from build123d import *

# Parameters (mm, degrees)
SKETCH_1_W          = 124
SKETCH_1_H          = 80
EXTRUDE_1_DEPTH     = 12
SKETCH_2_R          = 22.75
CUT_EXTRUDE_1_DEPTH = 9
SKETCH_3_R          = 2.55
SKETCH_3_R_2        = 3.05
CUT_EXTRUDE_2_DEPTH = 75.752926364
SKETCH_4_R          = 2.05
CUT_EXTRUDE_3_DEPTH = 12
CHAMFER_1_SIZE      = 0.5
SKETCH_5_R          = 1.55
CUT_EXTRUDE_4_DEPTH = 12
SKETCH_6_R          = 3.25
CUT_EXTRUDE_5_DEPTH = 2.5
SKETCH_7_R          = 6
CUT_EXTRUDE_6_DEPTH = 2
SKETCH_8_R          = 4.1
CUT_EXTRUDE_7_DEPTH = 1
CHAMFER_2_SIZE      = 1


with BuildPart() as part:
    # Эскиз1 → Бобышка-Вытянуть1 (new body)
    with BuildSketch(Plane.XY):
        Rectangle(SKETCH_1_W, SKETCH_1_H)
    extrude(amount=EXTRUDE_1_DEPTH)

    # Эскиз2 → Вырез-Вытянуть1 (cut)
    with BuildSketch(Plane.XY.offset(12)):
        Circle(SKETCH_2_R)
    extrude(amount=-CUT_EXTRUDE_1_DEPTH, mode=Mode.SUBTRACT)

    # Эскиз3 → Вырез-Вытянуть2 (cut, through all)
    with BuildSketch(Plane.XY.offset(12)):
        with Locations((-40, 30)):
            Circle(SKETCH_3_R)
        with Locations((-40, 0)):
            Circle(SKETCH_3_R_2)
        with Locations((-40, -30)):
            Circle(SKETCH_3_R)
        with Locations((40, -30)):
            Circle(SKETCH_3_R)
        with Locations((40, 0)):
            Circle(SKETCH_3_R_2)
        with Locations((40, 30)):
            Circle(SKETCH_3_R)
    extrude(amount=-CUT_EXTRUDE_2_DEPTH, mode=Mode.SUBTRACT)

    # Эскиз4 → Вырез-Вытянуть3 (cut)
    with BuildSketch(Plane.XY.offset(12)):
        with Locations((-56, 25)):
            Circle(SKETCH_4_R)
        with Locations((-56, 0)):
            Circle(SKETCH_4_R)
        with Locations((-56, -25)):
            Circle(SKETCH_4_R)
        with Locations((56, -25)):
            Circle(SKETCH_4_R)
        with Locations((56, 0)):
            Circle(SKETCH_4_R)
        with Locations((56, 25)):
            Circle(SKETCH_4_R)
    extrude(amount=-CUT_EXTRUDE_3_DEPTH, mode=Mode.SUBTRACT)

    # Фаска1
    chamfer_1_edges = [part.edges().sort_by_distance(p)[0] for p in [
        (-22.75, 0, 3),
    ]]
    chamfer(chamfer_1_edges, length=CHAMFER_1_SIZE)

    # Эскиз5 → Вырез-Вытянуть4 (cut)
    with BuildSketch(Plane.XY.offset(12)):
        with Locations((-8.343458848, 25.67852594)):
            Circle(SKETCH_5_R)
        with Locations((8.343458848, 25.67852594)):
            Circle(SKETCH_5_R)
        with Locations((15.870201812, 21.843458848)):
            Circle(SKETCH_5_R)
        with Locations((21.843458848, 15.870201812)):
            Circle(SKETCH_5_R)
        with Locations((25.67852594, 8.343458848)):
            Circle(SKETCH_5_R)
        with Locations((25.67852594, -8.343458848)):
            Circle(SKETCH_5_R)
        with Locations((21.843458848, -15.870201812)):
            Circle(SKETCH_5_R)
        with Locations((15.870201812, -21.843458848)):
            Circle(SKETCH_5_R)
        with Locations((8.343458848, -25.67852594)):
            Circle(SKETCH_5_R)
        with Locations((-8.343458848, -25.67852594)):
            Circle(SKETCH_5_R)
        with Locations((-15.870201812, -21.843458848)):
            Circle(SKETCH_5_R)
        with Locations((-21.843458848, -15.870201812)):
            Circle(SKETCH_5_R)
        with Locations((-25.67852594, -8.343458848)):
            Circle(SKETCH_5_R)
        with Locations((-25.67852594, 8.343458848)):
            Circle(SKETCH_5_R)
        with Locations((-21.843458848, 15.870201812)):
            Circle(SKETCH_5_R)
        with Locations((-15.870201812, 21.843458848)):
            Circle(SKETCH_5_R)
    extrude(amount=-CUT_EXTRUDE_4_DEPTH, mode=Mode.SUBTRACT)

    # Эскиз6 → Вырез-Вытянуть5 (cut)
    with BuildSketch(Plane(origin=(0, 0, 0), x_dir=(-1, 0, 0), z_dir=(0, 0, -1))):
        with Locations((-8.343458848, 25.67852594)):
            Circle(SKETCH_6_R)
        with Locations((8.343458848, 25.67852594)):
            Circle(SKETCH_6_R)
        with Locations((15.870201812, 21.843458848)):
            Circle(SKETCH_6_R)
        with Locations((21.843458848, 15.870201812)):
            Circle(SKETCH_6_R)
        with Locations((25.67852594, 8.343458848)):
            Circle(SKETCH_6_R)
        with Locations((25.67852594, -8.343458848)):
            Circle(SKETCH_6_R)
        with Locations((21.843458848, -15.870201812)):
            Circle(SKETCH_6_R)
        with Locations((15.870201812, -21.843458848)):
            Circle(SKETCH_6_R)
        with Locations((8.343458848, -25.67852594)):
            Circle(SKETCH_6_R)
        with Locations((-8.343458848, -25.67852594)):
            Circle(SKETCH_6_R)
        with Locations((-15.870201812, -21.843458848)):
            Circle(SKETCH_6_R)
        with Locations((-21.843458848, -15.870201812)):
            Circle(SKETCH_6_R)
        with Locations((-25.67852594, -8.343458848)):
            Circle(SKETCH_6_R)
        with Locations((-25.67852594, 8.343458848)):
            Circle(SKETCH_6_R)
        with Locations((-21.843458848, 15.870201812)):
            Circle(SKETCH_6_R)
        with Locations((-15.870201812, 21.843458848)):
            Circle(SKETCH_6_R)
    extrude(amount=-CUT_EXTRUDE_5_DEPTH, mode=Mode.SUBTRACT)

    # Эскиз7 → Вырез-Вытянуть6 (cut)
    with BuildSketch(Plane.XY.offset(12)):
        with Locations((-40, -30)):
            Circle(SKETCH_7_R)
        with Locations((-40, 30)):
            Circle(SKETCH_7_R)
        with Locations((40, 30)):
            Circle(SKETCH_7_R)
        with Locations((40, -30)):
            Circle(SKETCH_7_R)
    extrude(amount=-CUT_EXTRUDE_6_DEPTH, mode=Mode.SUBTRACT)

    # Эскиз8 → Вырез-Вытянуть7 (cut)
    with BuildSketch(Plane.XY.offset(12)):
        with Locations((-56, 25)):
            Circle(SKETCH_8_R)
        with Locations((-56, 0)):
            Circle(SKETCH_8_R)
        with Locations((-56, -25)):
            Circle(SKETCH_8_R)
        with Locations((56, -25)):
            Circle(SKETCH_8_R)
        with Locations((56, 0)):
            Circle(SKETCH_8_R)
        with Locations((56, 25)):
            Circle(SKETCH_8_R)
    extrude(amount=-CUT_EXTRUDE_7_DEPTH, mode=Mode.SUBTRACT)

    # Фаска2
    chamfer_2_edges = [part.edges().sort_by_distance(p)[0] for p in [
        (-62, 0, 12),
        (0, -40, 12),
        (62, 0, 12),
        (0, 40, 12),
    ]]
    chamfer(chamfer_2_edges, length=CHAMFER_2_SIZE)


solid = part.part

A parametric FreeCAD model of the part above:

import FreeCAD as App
import Part
import Sketcher

V = App.Vector


def edges_at(feature, points):
    """Names of the edges that pass closest to the given points."""
    edges = feature.Shape.Edges
    near = lambda p: min(range(len(edges)), key=lambda i: edges[i].distToShape(Part.Vertex(*p))[0])
    return sorted({f"Edge{near(p) + 1}" for p in points})

doc = App.newDocument("Part")
body = doc.addObject("PartDesign::Body", "Body")

# Sketch on XY plane
sketch1 = doc.addObject("Sketcher::SketchObject", "Sketch")
body.addObject(sketch1)
sketch1.AttachmentSupport = (doc.XY_Plane, [""])
sketch1.MapMode = "FlatFace"
sketch1.addGeometry(Part.LineSegment(V(-62, 40, 0), V(-62, -40, 0)), False)
sketch1.addGeometry(Part.LineSegment(V(-62, -40, 0), V(62, -40, 0)), False)
sketch1.addGeometry(Part.LineSegment(V(62, -40, 0), V(62, 40, 0)), False)
sketch1.addGeometry(Part.LineSegment(V(62, 40, 0), V(-62, 40, 0)), False)
sketch1.addConstraint(Sketcher.Constraint("Coincident", 0, 2, 1, 1))
sketch1.addConstraint(Sketcher.Constraint("Coincident", 1, 2, 2, 1))
sketch1.addConstraint(Sketcher.Constraint("Coincident", 2, 2, 3, 1))
sketch1.addConstraint(Sketcher.Constraint("Coincident", 3, 2, 0, 1))
sketch1.addConstraint(Sketcher.Constraint("Vertical", 0))
sketch1.addConstraint(Sketcher.Constraint("Horizontal", 1))
sketch1.addConstraint(Sketcher.Constraint("Vertical", 2))
sketch1.addConstraint(Sketcher.Constraint("Horizontal", 3))
sketch1.addConstraint(Sketcher.Constraint("Symmetric", 0, 2, 2, 2, -1, 1))
sketch1.addConstraint(Sketcher.Constraint("DistanceX", 1, 1, 1, 2, 124.0))
sketch1.addConstraint(Sketcher.Constraint("DistanceY", 0, 2, 0, 1, 80.0))
pad1 = doc.addObject("PartDesign::Pad", "Pad")
body.addObject(pad1)
pad1.Profile = sketch1
pad1.Length = 12

# Sketch on XY plane
sketch2 = doc.addObject("Sketcher::SketchObject", "Sketch001")
body.addObject(sketch2)
sketch2.AttachmentSupport = (doc.XY_Plane, [""])
sketch2.MapMode = "FlatFace"
sketch2.AttachmentOffset = App.Placement(V(0, 0, 12), App.Rotation())
sketch2.addGeometry(Part.Circle(V(0, 0, 0), V(0, 0, 1), 22.75), False)
sketch2.addConstraint(Sketcher.Constraint("Coincident", 0, 3, -1, 1))
sketch2.addConstraint(Sketcher.Constraint("Diameter", 0, 45.5))
pocket1 = doc.addObject("PartDesign::Pocket", "Pocket")
body.addObject(pocket1)
pocket1.Profile = sketch2
pocket1.Length = 9

# Sketch on XY plane
sketch3 = doc.addObject("Sketcher::SketchObject", "Sketch002")
body.addObject(sketch3)
sketch3.AttachmentSupport = (doc.XY_Plane, [""])
sketch3.MapMode = "FlatFace"
sketch3.AttachmentOffset = App.Placement(V(0, 0, 12), App.Rotation())
sketch3.addGeometry(Part.Circle(V(-40, 30, 0), V(0, 0, 1), 2.55), False)
sketch3.addGeometry(Part.Circle(V(-40, 0, 0), V(0, 0, 1), 3.05), False)
sketch3.addGeometry(Part.Circle(V(-40, -30, 0), V(0, 0, 1), 2.55), False)
sketch3.addGeometry(Part.Circle(V(40, -30, 0), V(0, 0, 1), 2.55), False)
sketch3.addGeometry(Part.Circle(V(40, 0, 0), V(0, 0, 1), 3.05), False)
sketch3.addGeometry(Part.Circle(V(40, 30, 0), V(0, 0, 1), 2.55), False)
sketch3.addConstraint(Sketcher.Constraint("Equal", 0, 2))
sketch3.addConstraint(Sketcher.Constraint("Equal", 2, 3))
sketch3.addConstraint(Sketcher.Constraint("Equal", 1, 4))
sketch3.addConstraint(Sketcher.Constraint("Equal", 3, 5))
sketch3.addConstraint(Sketcher.Constraint("Symmetric", 0, 3, 3, 3, -1, 1))
sketch3.addConstraint(Sketcher.Constraint("Symmetric", 1, 3, 4, 3, -1, 1))
sketch3.addConstraint(Sketcher.Constraint("Symmetric", 2, 3, 5, 3, -1, 1))
sketch3.addConstraint(Sketcher.Constraint("Symmetric", 2, 3, 3, 3, -2))
sketch3.addConstraint(Sketcher.Constraint("PointOnObject", 1, 3, -1))
sketch3.addConstraint(Sketcher.Constraint("Vertical", 0, 3, 1, 3))
sketch3.addConstraint(Sketcher.Constraint("Diameter", 0, 5.1))
sketch3.addConstraint(Sketcher.Constraint("Diameter", 1, 6.1))
sketch3.addConstraint(Sketcher.Constraint("DistanceX", 0, 3, -1, 1, 40.0))
sketch3.addConstraint(Sketcher.Constraint("DistanceY", -1, 1, 0, 3, 30.0))
pocket2 = doc.addObject("PartDesign::Pocket", "Pocket001")
body.addObject(pocket2)
pocket2.Profile = sketch3
pocket2.Type = "ThroughAll"

# Sketch on XY plane
sketch4 = doc.addObject("Sketcher::SketchObject", "Sketch003")
body.addObject(sketch4)
sketch4.AttachmentSupport = (doc.XY_Plane, [""])
sketch4.MapMode = "FlatFace"
sketch4.AttachmentOffset = App.Placement(V(0, 0, 12), App.Rotation())
sketch4.addGeometry(Part.Circle(V(-56, 25, 0), V(0, 0, 1), 2.05), False)
sketch4.addGeometry(Part.Circle(V(-56, 0, 0), V(0, 0, 1), 2.05), False)
sketch4.addGeometry(Part.Circle(V(-56, -25, 0), V(0, 0, 1), 2.05), False)
sketch4.addGeometry(Part.Circle(V(56, -25, 0), V(0, 0, 1), 2.05), False)
sketch4.addGeometry(Part.Circle(V(56, 0, 0), V(0, 0, 1), 2.05), False)
sketch4.addGeometry(Part.Circle(V(56, 25, 0), V(0, 0, 1), 2.05), False)
sketch4.addConstraint(Sketcher.Constraint("Equal", 0, 1))
sketch4.addConstraint(Sketcher.Constraint("Equal", 1, 2))
sketch4.addConstraint(Sketcher.Constraint("Equal", 2, 3))
sketch4.addConstraint(Sketcher.Constraint("Equal", 3, 4))
sketch4.addConstraint(Sketcher.Constraint("Equal", 4, 5))
sketch4.addConstraint(Sketcher.Constraint("Symmetric", 0, 3, 3, 3, -1, 1))
sketch4.addConstraint(Sketcher.Constraint("Symmetric", 1, 3, 4, 3, -1, 1))
sketch4.addConstraint(Sketcher.Constraint("Symmetric", 2, 3, 5, 3, -1, 1))
sketch4.addConstraint(Sketcher.Constraint("Symmetric", 2, 3, 3, 3, -2))
sketch4.addConstraint(Sketcher.Constraint("PointOnObject", 1, 3, -1))
sketch4.addConstraint(Sketcher.Constraint("Vertical", 0, 3, 1, 3))
sketch4.addConstraint(Sketcher.Constraint("Diameter", 0, 4.1))
sketch4.addConstraint(Sketcher.Constraint("DistanceX", 0, 3, -1, 1, 56.0))
sketch4.addConstraint(Sketcher.Constraint("DistanceY", -1, 1, 0, 3, 25.0))
pocket3 = doc.addObject("PartDesign::Pocket", "Pocket002")
body.addObject(pocket3)
pocket3.Profile = sketch4
pocket3.Length = 12
doc.recompute()

chamfer = doc.addObject("PartDesign::Chamfer", "Chamfer")
body.addObject(chamfer)
chamfer.Base = (pocket3, edges_at(pocket3, [(-22.75, 0, 3)]))
chamfer.Size = 0.5

# Sketch on XY plane
sketch5 = doc.addObject("Sketcher::SketchObject", "Sketch004")
body.addObject(sketch5)
sketch5.AttachmentSupport = (doc.XY_Plane, [""])
sketch5.MapMode = "FlatFace"
sketch5.AttachmentOffset = App.Placement(V(0, 0, 12), App.Rotation())
sketch5.addGeometry(Part.Circle(V(-8.343459, 25.678526, 0), V(0, 0, 1), 1.55), False)
sketch5.addGeometry(Part.Circle(V(8.343459, 25.678526, 0), V(0, 0, 1), 1.55), False)
sketch5.addGeometry(Part.Circle(V(15.870202, 21.843459, 0), V(0, 0, 1), 1.55), False)
sketch5.addGeometry(Part.Circle(V(21.843459, 15.870202, 0), V(0, 0, 1), 1.55), False)
sketch5.addGeometry(Part.Circle(V(25.678526, 8.343459, 0), V(0, 0, 1), 1.55), False)
sketch5.addGeometry(Part.Circle(V(25.678526, -8.343459, 0), V(0, 0, 1), 1.55), False)
sketch5.addGeometry(Part.Circle(V(21.843459, -15.870202, 0), V(0, 0, 1), 1.55), False)
sketch5.addGeometry(Part.Circle(V(15.870202, -21.843459, 0), V(0, 0, 1), 1.55), False)
sketch5.addGeometry(Part.Circle(V(8.343459, -25.678526, 0), V(0, 0, 1), 1.55), False)
sketch5.addGeometry(Part.Circle(V(-8.343459, -25.678526, 0), V(0, 0, 1), 1.55), False)
sketch5.addGeometry(Part.Circle(V(-15.870202, -21.843459, 0), V(0, 0, 1), 1.55), False)
sketch5.addGeometry(Part.Circle(V(-21.843459, -15.870202, 0), V(0, 0, 1), 1.55), False)
sketch5.addGeometry(Part.Circle(V(-25.678526, -8.343459, 0), V(0, 0, 1), 1.55), False)
sketch5.addGeometry(Part.Circle(V(-25.678526, 8.343459, 0), V(0, 0, 1), 1.55), False)
sketch5.addGeometry(Part.Circle(V(-21.843459, 15.870202, 0), V(0, 0, 1), 1.55), False)
sketch5.addGeometry(Part.Circle(V(-15.870202, 21.843459, 0), V(0, 0, 1), 1.55), False)
sketch5.addConstraint(Sketcher.Constraint("Equal", 0, 1))
sketch5.addConstraint(Sketcher.Constraint("Equal", 1, 2))
sketch5.addConstraint(Sketcher.Constraint("Equal", 2, 3))
sketch5.addConstraint(Sketcher.Constraint("Equal", 3, 4))
sketch5.addConstraint(Sketcher.Constraint("Equal", 4, 5))
sketch5.addConstraint(Sketcher.Constraint("Equal", 5, 6))
sketch5.addConstraint(Sketcher.Constraint("Equal", 6, 7))
sketch5.addConstraint(Sketcher.Constraint("Equal", 7, 8))
sketch5.addConstraint(Sketcher.Constraint("Equal", 8, 9))
sketch5.addConstraint(Sketcher.Constraint("Equal", 9, 10))
sketch5.addConstraint(Sketcher.Constraint("Equal", 10, 11))
sketch5.addConstraint(Sketcher.Constraint("Equal", 11, 12))
sketch5.addConstraint(Sketcher.Constraint("Equal", 12, 13))
sketch5.addConstraint(Sketcher.Constraint("Equal", 13, 14))
sketch5.addConstraint(Sketcher.Constraint("Equal", 14, 15))
sketch5.addConstraint(Sketcher.Constraint("Symmetric", 0, 3, 8, 3, -1, 1))
sketch5.addConstraint(Sketcher.Constraint("Symmetric", 1, 3, 9, 3, -1, 1))
sketch5.addConstraint(Sketcher.Constraint("Symmetric", 2, 3, 10, 3, -1, 1))
sketch5.addConstraint(Sketcher.Constraint("Symmetric", 3, 3, 11, 3, -1, 1))
sketch5.addConstraint(Sketcher.Constraint("Symmetric", 4, 3, 12, 3, -1, 1))
sketch5.addConstraint(Sketcher.Constraint("Symmetric", 5, 3, 13, 3, -1, 1))
sketch5.addConstraint(Sketcher.Constraint("Symmetric", 6, 3, 14, 3, -1, 1))
sketch5.addConstraint(Sketcher.Constraint("Symmetric", 7, 3, 15, 3, -1, 1))
sketch5.addConstraint(Sketcher.Constraint("Symmetric", 0, 3, 1, 3, -2))
sketch5.addConstraint(Sketcher.Constraint("Symmetric", 7, 3, 10, 3, -2))
sketch5.addConstraint(Sketcher.Constraint("Symmetric", 6, 3, 11, 3, -2))
sketch5.addConstraint(Sketcher.Constraint("Symmetric", 5, 3, 12, 3, -2))
sketch5.addConstraint(Sketcher.Constraint("Diameter", 0, 3.1))
sketch5.addConstraint(Sketcher.Constraint("DistanceX", 1, 3, 3, 3, 13.5))
sketch5.addConstraint(Sketcher.Constraint("DistanceY", 4, 3, 2, 3, 13.5))
sketch5.addConstraint(Sketcher.Constraint("DistanceX", -1, 1, 2, 3, 15.870202))
sketch5.addConstraint(Sketcher.Constraint("DistanceY", -1, 1, 3, 3, 15.870202))
sketch5.addConstraint(Sketcher.Constraint("DistanceX", 0, 3, -1, 1, 8.343459))
sketch5.addConstraint(Sketcher.Constraint("DistanceY", -1, 1, 2, 3, 21.843459))
sketch5.addConstraint(Sketcher.Constraint("DistanceY", -1, 1, 0, 3, 25.678526))
sketch5.addConstraint(Sketcher.Constraint("DistanceX", -1, 1, 4, 3, 25.678526))
pocket4 = doc.addObject("PartDesign::Pocket", "Pocket003")
body.addObject(pocket4)
pocket4.Profile = sketch5
pocket4.Length = 12

# Sketch on XY plane
sketch6 = doc.addObject("Sketcher::SketchObject", "Sketch005")
body.addObject(sketch6)
sketch6.AttachmentSupport = (doc.XY_Plane, [""])
sketch6.MapMode = "FlatFace"
sketch6.addGeometry(Part.Circle(V(8.343459, 25.678526, 0), V(0, 0, 1), 3.25), False)
sketch6.addGeometry(Part.Circle(V(-8.343459, 25.678526, 0), V(0, 0, 1), 3.25), False)
sketch6.addGeometry(Part.Circle(V(-15.870202, 21.843459, 0), V(0, 0, 1), 3.25), False)
sketch6.addGeometry(Part.Circle(V(-21.843459, 15.870202, 0), V(0, 0, 1), 3.25), False)
sketch6.addGeometry(Part.Circle(V(-25.678526, 8.343459, 0), V(0, 0, 1), 3.25), False)
sketch6.addGeometry(Part.Circle(V(-25.678526, -8.343459, 0), V(0, 0, 1), 3.25), False)
sketch6.addGeometry(Part.Circle(V(-21.843459, -15.870202, 0), V(0, 0, 1), 3.25), False)
sketch6.addGeometry(Part.Circle(V(-15.870202, -21.843459, 0), V(0, 0, 1), 3.25), False)
sketch6.addGeometry(Part.Circle(V(-8.343459, -25.678526, 0), V(0, 0, 1), 3.25), False)
sketch6.addGeometry(Part.Circle(V(8.343459, -25.678526, 0), V(0, 0, 1), 3.25), False)
sketch6.addGeometry(Part.Circle(V(15.870202, -21.843459, 0), V(0, 0, 1), 3.25), False)
sketch6.addGeometry(Part.Circle(V(21.843459, -15.870202, 0), V(0, 0, 1), 3.25), False)
sketch6.addGeometry(Part.Circle(V(25.678526, -8.343459, 0), V(0, 0, 1), 3.25), False)
sketch6.addGeometry(Part.Circle(V(25.678526, 8.343459, 0), V(0, 0, 1), 3.25), False)
sketch6.addGeometry(Part.Circle(V(21.843459, 15.870202, 0), V(0, 0, 1), 3.25), False)
sketch6.addGeometry(Part.Circle(V(15.870202, 21.843459, 0), V(0, 0, 1), 3.25), False)
sketch6.addConstraint(Sketcher.Constraint("Equal", 0, 1))
sketch6.addConstraint(Sketcher.Constraint("Equal", 1, 2))
sketch6.addConstraint(Sketcher.Constraint("Equal", 2, 3))
sketch6.addConstraint(Sketcher.Constraint("Equal", 3, 4))
sketch6.addConstraint(Sketcher.Constraint("Equal", 4, 5))
sketch6.addConstraint(Sketcher.Constraint("Equal", 5, 6))
sketch6.addConstraint(Sketcher.Constraint("Equal", 6, 7))
sketch6.addConstraint(Sketcher.Constraint("Equal", 7, 8))
sketch6.addConstraint(Sketcher.Constraint("Equal", 8, 9))
sketch6.addConstraint(Sketcher.Constraint("Equal", 9, 10))
sketch6.addConstraint(Sketcher.Constraint("Equal", 10, 11))
sketch6.addConstraint(Sketcher.Constraint("Equal", 11, 12))
sketch6.addConstraint(Sketcher.Constraint("Equal", 12, 13))
sketch6.addConstraint(Sketcher.Constraint("Equal", 13, 14))
sketch6.addConstraint(Sketcher.Constraint("Equal", 14, 15))
sketch6.addConstraint(Sketcher.Constraint("Symmetric", 0, 3, 8, 3, -1, 1))
sketch6.addConstraint(Sketcher.Constraint("Symmetric", 1, 3, 9, 3, -1, 1))
sketch6.addConstraint(Sketcher.Constraint("Symmetric", 2, 3, 10, 3, -1, 1))
sketch6.addConstraint(Sketcher.Constraint("Symmetric", 3, 3, 11, 3, -1, 1))
sketch6.addConstraint(Sketcher.Constraint("Symmetric", 4, 3, 12, 3, -1, 1))
sketch6.addConstraint(Sketcher.Constraint("Symmetric", 5, 3, 13, 3, -1, 1))
sketch6.addConstraint(Sketcher.Constraint("Symmetric", 6, 3, 14, 3, -1, 1))
sketch6.addConstraint(Sketcher.Constraint("Symmetric", 7, 3, 15, 3, -1, 1))
sketch6.addConstraint(Sketcher.Constraint("Symmetric", 0, 3, 1, 3, -2))
sketch6.addConstraint(Sketcher.Constraint("Symmetric", 7, 3, 10, 3, -2))
sketch6.addConstraint(Sketcher.Constraint("Symmetric", 6, 3, 11, 3, -2))
sketch6.addConstraint(Sketcher.Constraint("Symmetric", 5, 3, 12, 3, -2))
sketch6.addConstraint(Sketcher.Constraint("Diameter", 0, 6.5))
sketch6.addConstraint(Sketcher.Constraint("DistanceX", 3, 3, 1, 3, 13.5))
sketch6.addConstraint(Sketcher.Constraint("DistanceY", 4, 3, 2, 3, 13.5))
sketch6.addConstraint(Sketcher.Constraint("DistanceX", 2, 3, -1, 1, 15.870202))
sketch6.addConstraint(Sketcher.Constraint("DistanceY", -1, 1, 3, 3, 15.870202))
sketch6.addConstraint(Sketcher.Constraint("DistanceX", -1, 1, 0, 3, 8.343459))
sketch6.addConstraint(Sketcher.Constraint("DistanceY", -1, 1, 2, 3, 21.843459))
sketch6.addConstraint(Sketcher.Constraint("DistanceY", -1, 1, 0, 3, 25.678526))
sketch6.addConstraint(Sketcher.Constraint("DistanceX", 4, 3, -1, 1, 25.678526))
pocket5 = doc.addObject("PartDesign::Pocket", "Pocket004")
body.addObject(pocket5)
pocket5.Profile = sketch6
pocket5.Length = 2.5
pocket5.Reversed = True

# Sketch on XY plane
sketch7 = doc.addObject("Sketcher::SketchObject", "Sketch006")
body.addObject(sketch7)
sketch7.AttachmentSupport = (doc.XY_Plane, [""])
sketch7.MapMode = "FlatFace"
sketch7.AttachmentOffset = App.Placement(V(0, 0, 12), App.Rotation())
sketch7.addGeometry(Part.Circle(V(-40, -30, 0), V(0, 0, 1), 6), False)
sketch7.addGeometry(Part.Circle(V(-40, 30, 0), V(0, 0, 1), 6), False)
sketch7.addGeometry(Part.Circle(V(40, 30, 0), V(0, 0, 1), 6), False)
sketch7.addGeometry(Part.Circle(V(40, -30, 0), V(0, 0, 1), 6), False)
sketch7.addConstraint(Sketcher.Constraint("Equal", 0, 1))
sketch7.addConstraint(Sketcher.Constraint("Equal", 1, 2))
sketch7.addConstraint(Sketcher.Constraint("Equal", 2, 3))
sketch7.addConstraint(Sketcher.Constraint("Symmetric", 0, 3, 2, 3, -1, 1))
sketch7.addConstraint(Sketcher.Constraint("Symmetric", 1, 3, 3, 3, -1, 1))
sketch7.addConstraint(Sketcher.Constraint("Symmetric", 1, 3, 2, 3, -2))
sketch7.addConstraint(Sketcher.Constraint("Diameter", 0, 12.0))
sketch7.addConstraint(Sketcher.Constraint("DistanceX", 0, 3, -1, 1, 40.0))
sketch7.addConstraint(Sketcher.Constraint("DistanceY", 0, 3, -1, 1, 30.0))
pocket6 = doc.addObject("PartDesign::Pocket", "Pocket005")
body.addObject(pocket6)
pocket6.Profile = sketch7
pocket6.Length = 2

# Sketch on XY plane
sketch8 = doc.addObject("Sketcher::SketchObject", "Sketch007")
body.addObject(sketch8)
sketch8.AttachmentSupport = (doc.XY_Plane, [""])
sketch8.MapMode = "FlatFace"
sketch8.AttachmentOffset = App.Placement(V(0, 0, 12), App.Rotation())
sketch8.addGeometry(Part.Circle(V(-56, 25, 0), V(0, 0, 1), 4.1), False)
sketch8.addGeometry(Part.Circle(V(-56, 0, 0), V(0, 0, 1), 4.1), False)
sketch8.addGeometry(Part.Circle(V(-56, -25, 0), V(0, 0, 1), 4.1), False)
sketch8.addGeometry(Part.Circle(V(56, -25, 0), V(0, 0, 1), 4.1), False)
sketch8.addGeometry(Part.Circle(V(56, 0, 0), V(0, 0, 1), 4.1), False)
sketch8.addGeometry(Part.Circle(V(56, 25, 0), V(0, 0, 1), 4.1), False)
sketch8.addConstraint(Sketcher.Constraint("Equal", 0, 1))
sketch8.addConstraint(Sketcher.Constraint("Equal", 1, 2))
sketch8.addConstraint(Sketcher.Constraint("Equal", 2, 3))
sketch8.addConstraint(Sketcher.Constraint("Equal", 3, 4))
sketch8.addConstraint(Sketcher.Constraint("Equal", 4, 5))
sketch8.addConstraint(Sketcher.Constraint("Symmetric", 0, 3, 3, 3, -1, 1))
sketch8.addConstraint(Sketcher.Constraint("Symmetric", 1, 3, 4, 3, -1, 1))
sketch8.addConstraint(Sketcher.Constraint("Symmetric", 2, 3, 5, 3, -1, 1))
sketch8.addConstraint(Sketcher.Constraint("Symmetric", 2, 3, 3, 3, -2))
sketch8.addConstraint(Sketcher.Constraint("PointOnObject", 1, 3, -1))
sketch8.addConstraint(Sketcher.Constraint("Vertical", 0, 3, 1, 3))
sketch8.addConstraint(Sketcher.Constraint("Diameter", 0, 8.2))
sketch8.addConstraint(Sketcher.Constraint("DistanceX", 0, 3, -1, 1, 56.0))
sketch8.addConstraint(Sketcher.Constraint("DistanceY", -1, 1, 0, 3, 25.0))
pocket7 = doc.addObject("PartDesign::Pocket", "Pocket006")
body.addObject(pocket7)
pocket7.Profile = sketch8
pocket7.Length = 1
doc.recompute()

chamfer2 = doc.addObject("PartDesign::Chamfer", "Chamfer001")
body.addObject(chamfer2)
chamfer2.Base = (pocket7, edges_at(pocket7, [
    (-62, 0, 12),
    (0, -40, 12),
    (62, 0, 12),
    (0, 40, 12),
]))
chamfer2.Size = 1

doc.recompute()
